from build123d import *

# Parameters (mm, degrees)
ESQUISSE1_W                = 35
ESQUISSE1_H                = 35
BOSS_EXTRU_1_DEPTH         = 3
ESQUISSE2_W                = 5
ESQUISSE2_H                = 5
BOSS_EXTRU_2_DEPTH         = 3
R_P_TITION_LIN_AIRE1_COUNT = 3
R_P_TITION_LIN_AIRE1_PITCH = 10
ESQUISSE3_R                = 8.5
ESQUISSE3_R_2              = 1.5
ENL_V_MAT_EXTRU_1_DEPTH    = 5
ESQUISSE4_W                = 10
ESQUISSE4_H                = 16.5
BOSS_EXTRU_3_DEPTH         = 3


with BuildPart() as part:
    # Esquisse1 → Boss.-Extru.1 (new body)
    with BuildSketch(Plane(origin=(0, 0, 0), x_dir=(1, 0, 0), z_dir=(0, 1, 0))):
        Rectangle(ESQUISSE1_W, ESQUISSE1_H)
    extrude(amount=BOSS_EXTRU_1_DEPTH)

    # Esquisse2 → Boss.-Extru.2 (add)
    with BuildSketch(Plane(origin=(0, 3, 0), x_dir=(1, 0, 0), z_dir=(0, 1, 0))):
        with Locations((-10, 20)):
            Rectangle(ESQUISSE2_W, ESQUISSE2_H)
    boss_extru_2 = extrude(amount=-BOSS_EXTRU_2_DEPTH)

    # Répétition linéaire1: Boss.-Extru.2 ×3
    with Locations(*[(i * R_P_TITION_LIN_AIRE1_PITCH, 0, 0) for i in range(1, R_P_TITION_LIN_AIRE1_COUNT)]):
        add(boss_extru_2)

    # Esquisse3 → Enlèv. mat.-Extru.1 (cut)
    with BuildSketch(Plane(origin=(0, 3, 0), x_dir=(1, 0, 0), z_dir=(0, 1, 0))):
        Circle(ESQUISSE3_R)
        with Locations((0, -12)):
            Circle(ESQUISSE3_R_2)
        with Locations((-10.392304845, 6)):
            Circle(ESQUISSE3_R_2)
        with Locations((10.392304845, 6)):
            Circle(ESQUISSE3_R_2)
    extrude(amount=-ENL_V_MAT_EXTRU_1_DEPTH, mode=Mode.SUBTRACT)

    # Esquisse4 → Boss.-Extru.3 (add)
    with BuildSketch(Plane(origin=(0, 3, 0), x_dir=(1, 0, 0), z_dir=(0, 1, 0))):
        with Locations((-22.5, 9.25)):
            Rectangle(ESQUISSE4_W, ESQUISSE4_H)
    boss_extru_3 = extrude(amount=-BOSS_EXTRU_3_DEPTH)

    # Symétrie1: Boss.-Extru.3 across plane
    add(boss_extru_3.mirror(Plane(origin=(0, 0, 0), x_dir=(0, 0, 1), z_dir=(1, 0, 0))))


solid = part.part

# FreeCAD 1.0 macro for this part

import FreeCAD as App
import Part
import Sketcher

V = App.Vector
Q = App.Units.Quantity


def add_polygon(sketch, points):
    """Adds a closed chain of lines whose ends are joined by coincident constraints."""
    first, n = sketch.GeometryCount, len(points)
    for a, b in zip(points, points[1:] + points[:1]):
        sketch.addGeometry(Part.LineSegment(App.Vector(*a, 0), App.Vector(*b, 0)), False)
    for i in range(n):
        sketch.addConstraint(Sketcher.Constraint("Coincident", first + i, 2, first + (i + 1) % n, 1))

doc = App.newDocument("Part")
body = doc.addObject("PartDesign::Body", "Body")

# Sketch on XZ plane
sketch1 = doc.addObject("Sketcher::SketchObject", "Sketch")
body.addObject(sketch1)
sketch1.AttachmentSupport = (doc.XZ_Plane, [""])
sketch1.MapMode = "FlatFace"
add_polygon(sketch1, [(-18, -18), (-18, 18), (18, 18), (18, -18)])  # lines 0-3
sketch1.addConstraint(Sketcher.Constraint("Vertical", 0))
sketch1.addConstraint(Sketcher.Constraint("Horizontal", 1))
sketch1.addConstraint(Sketcher.Constraint("Vertical", 2))
sketch1.addConstraint(Sketcher.Constraint("Horizontal", 3))
sketch1.addConstraint(Sketcher.Constraint("Symmetric", 0, 2, 2, 2, -1, 1))
sketch1.addConstraint(Sketcher.Constraint("Equal", 3, 0))
sketch1.addConstraint(Sketcher.Constraint("DistanceX", 1, 1, 1, 2, Q("35 mm")))
pad1 = doc.addObject("PartDesign::Pad", "Pad")
body.addObject(pad1)
pad1.Profile = sketch1
pad1.Length = 3
pad1.Reversed = True

# Sketch on XZ plane
sketch2 = doc.addObject("Sketcher::SketchObject", "Sketch001")
body.addObject(sketch2)
sketch2.AttachmentSupport = (doc.XZ_Plane, [""])
sketch2.MapMode = "FlatFace"
sketch2.AttachmentOffset = App.Placement(V(0, 0, -3), App.Rotation())
add_polygon(sketch2, [(-12, -22), (-12, -18), (-8, -18), (-8, -22)])  # lines 0-3
sketch2.addConstraint(Sketcher.Constraint("Vertical", 0))
sketch2.addConstraint(Sketcher.Constraint("Horizontal", 1))
sketch2.addConstraint(Sketcher.Constraint("Vertical", 2))
sketch2.addConstraint(Sketcher.Constraint("Horizontal", 3))
sketch2.addConstraint(Sketcher.Constraint("Equal", 3, 0))
sketch2.addConstraint(Sketcher.Constraint("DistanceX", 1, 1, 1, 2, Q("5 mm")))
sketch2.addConstraint(Sketcher.Constraint("DistanceX", 0, 2, -1, 1, Q("12.5 mm")))
sketch2.addConstraint(Sketcher.Constraint("DistanceY", 0, 2, -1, 1, Q("17.5 mm")))
pad2 = doc.addObject("PartDesign::Pad", "Pad001")
body.addObject(pad2)
pad2.Profile = sketch2
pad2.Length = 3
doc.recompute()

linearpattern = doc.addObject("PartDesign::LinearPattern", "LinearPattern")
body.addObject(linearpattern)
linearpattern.Originals = [pad2]
linearpattern.Direction = (doc.X_Axis, [""])
linearpattern.Mode = "offset"
linearpattern.Offset = 10
linearpattern.Occurrences = 3
body.Tip = linearpattern

# Sketch on XZ plane
sketch3 = doc.addObject("Sketcher::SketchObject", "Sketch002")
body.addObject(sketch3)
sketch3.AttachmentSupport = (doc.XZ_Plane, [""])
sketch3.MapMode = "FlatFace"
sketch3.AttachmentOffset = App.Placement(V(0, 0, -3), App.Rotation())
sketch3.addGeometry(Part.Circle(V(0, 0, 0), V(0, 0, 1), 8.5), False)
sketch3.addGeometry(Part.Circle(V(0, 12, 0), V(0, 0, 1), 1.5), False)
sketch3.addGeometry(Part.Circle(V(-10.4, -6, 0), V(0, 0, 1), 1.5), False)
sketch3.addGeometry(Part.Circle(V(10.4, -6, 0), V(0, 0, 1), 1.5), False)
sketch3.addConstraint(Sketcher.Constraint("Coincident", 0, 3, -1, 1))
sketch3.addConstraint(Sketcher.Constraint("Equal", 1, 2))
sketch3.addConstraint(Sketcher.Constraint("Equal", 2, 3))
sketch3.addConstraint(Sketcher.Constraint("Symmetric", 2, 3, 3, 3, -2))
sketch3.addConstraint(Sketcher.Constraint("PointOnObject", 1, 3, -2))
sketch3.addConstraint(Sketcher.Constraint("Diameter", 0, Q("17 mm")))
sketch3.addConstraint(Sketcher.Constraint("Diameter", 1, Q("3 mm")))
sketch3.addConstraint(Sketcher.Constraint("DistanceY", -1, 1, 1, 3, Q("12 mm")))
sketch3.addConstraint(Sketcher.Constraint("DistanceY", 2, 3, -1, 1, Q("6 mm")))
sketch3.addConstraint(Sketcher.Constraint("DistanceX", 2, 3, 3, 3, Q("20.78461 mm")))
pocket1 = doc.addObject("PartDesign::Pocket", "Pocket")
body.addObject(pocket1)
pocket1.Profile = sketch3
pocket1.Length = 5
pocket1.Reversed = True

# Sketch on XZ plane
sketch4 = doc.addObject("Sketcher::SketchObject", "Sketch003")
body.addObject(sketch4)
sketch4.AttachmentSupport = (doc.XZ_Plane, [""])
sketch4.MapMode = "FlatFace"
sketch4.AttachmentOffset = App.Placement(V(0, 0, -3), App.Rotation())
add_polygon(sketch4, [(-28, -18), (-28, -1), (-18, -1), (-18, -18)])  # lines 0-3
sketch4.addConstraint(Sketcher.Constraint("Vertical", 0))
sketch4.addConstraint(Sketcher.Constraint("Horizontal", 1))
sketch4.addConstraint(Sketcher.Constraint("Vertical", 2))
sketch4.addConstraint(Sketcher.Constraint("Horizontal", 3))
sketch4.addConstraint(Sketcher.Constraint("DistanceX", 1, 1, 1, 2, Q("10 mm")))
sketch4.addConstraint(Sketcher.Constraint("DistanceY", 0, 1, 0, 2, Q("16.5 mm")))
sketch4.addConstraint(Sketcher.Constraint("DistanceY", 0, 2, -1, 1, Q("1 mm")))
sketch4.addConstraint(Sketcher.Constraint("DistanceX", 0, 2, -1, 1, Q("27.5 mm")))
pad3 = doc.addObject("PartDesign::Pad", "Pad002")
body.addObject(pad3)
pad3.Profile = sketch4
pad3.Length = 3
doc.recompute()

mirrored = doc.addObject("PartDesign::Mirrored", "Mirrored")
body.addObject(mirrored)
mirrored.Originals = [pad3]
mirrored.MirrorPlane = (doc.YZ_Plane, [""])
body.Tip = mirrored

doc.recompute()
